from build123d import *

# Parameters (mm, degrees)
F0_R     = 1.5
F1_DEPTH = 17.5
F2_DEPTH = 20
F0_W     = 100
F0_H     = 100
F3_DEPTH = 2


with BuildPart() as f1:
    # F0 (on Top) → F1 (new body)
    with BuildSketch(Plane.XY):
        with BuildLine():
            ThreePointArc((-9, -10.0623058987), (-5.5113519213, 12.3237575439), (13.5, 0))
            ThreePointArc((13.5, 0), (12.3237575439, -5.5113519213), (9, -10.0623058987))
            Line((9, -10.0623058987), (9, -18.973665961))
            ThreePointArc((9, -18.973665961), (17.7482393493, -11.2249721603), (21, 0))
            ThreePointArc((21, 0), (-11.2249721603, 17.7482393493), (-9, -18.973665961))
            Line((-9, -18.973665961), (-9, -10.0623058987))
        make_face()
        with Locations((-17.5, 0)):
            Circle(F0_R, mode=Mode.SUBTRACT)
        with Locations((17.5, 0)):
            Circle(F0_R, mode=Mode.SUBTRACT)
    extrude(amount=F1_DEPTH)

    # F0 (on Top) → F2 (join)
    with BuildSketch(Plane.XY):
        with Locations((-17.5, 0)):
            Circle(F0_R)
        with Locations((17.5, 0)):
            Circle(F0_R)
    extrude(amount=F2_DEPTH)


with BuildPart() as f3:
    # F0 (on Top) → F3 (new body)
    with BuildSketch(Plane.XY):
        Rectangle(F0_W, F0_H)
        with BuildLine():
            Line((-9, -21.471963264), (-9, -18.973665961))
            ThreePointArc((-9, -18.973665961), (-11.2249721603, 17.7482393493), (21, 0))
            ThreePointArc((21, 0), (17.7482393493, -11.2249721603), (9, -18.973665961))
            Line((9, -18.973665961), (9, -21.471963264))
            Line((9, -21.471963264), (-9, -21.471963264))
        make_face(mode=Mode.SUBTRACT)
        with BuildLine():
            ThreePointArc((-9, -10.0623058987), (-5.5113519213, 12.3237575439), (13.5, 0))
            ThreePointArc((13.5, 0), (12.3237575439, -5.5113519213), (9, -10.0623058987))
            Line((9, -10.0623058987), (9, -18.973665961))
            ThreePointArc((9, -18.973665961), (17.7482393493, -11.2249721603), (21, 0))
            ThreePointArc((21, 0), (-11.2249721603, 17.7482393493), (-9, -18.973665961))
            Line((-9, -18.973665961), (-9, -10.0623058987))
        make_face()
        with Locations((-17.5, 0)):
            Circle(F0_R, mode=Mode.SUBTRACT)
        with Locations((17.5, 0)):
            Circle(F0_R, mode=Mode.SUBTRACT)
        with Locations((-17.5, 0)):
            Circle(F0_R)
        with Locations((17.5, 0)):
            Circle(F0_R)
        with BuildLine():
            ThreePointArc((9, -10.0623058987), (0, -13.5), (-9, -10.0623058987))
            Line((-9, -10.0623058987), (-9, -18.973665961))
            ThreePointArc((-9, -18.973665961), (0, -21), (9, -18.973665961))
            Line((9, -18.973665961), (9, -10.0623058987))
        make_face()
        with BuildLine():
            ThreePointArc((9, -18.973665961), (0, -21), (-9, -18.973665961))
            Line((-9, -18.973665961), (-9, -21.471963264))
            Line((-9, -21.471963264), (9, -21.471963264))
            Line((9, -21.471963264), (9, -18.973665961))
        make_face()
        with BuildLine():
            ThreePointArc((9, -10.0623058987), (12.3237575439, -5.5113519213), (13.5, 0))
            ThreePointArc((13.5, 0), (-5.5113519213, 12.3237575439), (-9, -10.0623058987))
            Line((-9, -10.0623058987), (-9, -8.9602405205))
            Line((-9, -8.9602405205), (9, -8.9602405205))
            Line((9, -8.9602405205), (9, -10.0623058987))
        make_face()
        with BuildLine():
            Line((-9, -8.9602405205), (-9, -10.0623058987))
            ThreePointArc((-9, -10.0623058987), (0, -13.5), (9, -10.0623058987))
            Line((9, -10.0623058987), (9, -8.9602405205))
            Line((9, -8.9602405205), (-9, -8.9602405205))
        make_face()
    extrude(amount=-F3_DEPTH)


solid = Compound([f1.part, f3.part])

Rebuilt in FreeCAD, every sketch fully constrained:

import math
import FreeCAD as App
import Part
import Sketcher


def add_polygon(sketch, points):
    """Adds a closed chain of lines whose ends are joined by coincident constraints."""
    first, n = sketch.GeometryCount, len(points)
    for a, b in zip(points, points[1:] + points[:1]):
        sketch.addGeometry(Part.LineSegment(App.Vector(*a, 0), App.Vector(*b, 0)), False)
    for i in range(n):
        sketch.addConstraint(Sketcher.Constraint("Coincident", first + i, 2, first + (i + 1) % n, 1))

doc = App.newDocument("Part")
body = doc.addObject("PartDesign::Body", "Body")

# Sketch on XY plane
sketch1 = body.newObject("Sketcher::SketchObject", "Sketch")
sketch1.AttachmentSupport = (doc.getObject("XY_Plane"), [""])
sketch1.MapMode = "FlatFace"
sketch1.addGeometry([
    Part.ArcOfCircle(Part.Circle(App.Vector(0, 0, 0), App.Vector(0, 0, 1), 13.5), math.radians(0), math.radians(228)),  # 0
    Part.ArcOfCircle(Part.Circle(App.Vector(0, 0, 0), App.Vector(0, 0, 1), 13.5), math.radians(-48), math.radians(0)),  # 1
    Part.LineSegment(App.Vector(9, -10.1, 0), App.Vector(9, -19, 0)),  # 2
    Part.ArcOfCircle(Part.Circle(App.Vector(0, 0, 0), App.Vector(0, 0, 1), 21), math.radians(-65), math.radians(0)),  # 3
    Part.ArcOfCircle(Part.Circle(App.Vector(0, 0, 0), App.Vector(0, 0, 1), 21), math.radians(0), math.radians(245)),  # 4
    Part.LineSegment(App.Vector(-9, -19, 0), App.Vector(-9, -10.1, 0)),  # 5
    Part.Circle(App.Vector(-17.5, 0, 0), App.Vector(0, 0, 1), 1.5),  # 6
    Part.Circle(App.Vector(17.5, 0, 0), App.Vector(0, 0, 1), 1.5),  # 7
], False)
sketch1.addConstraint([
    Sketcher.Constraint("Tangent", 0, 1, 1, 2),
    Sketcher.Constraint("Coincident", 1, 1, 2, 1),
    Sketcher.Constraint("Coincident", 2, 2, 3, 1),
    Sketcher.Constraint("Tangent", 3, 2, 4, 1),
    Sketcher.Constraint("Coincident", 4, 2, 5, 1),
    Sketcher.Constraint("Coincident", 5, 2, 0, 2),
    Sketcher.Constraint("Vertical", 2),
    Sketcher.Constraint("Vertical", 5),
    Sketcher.Constraint("Coincident", 0, 3, -1, 1),
    Sketcher.Constraint("Coincident", 3, 3, -1, 1),
    Sketcher.Constraint("Equal", 0, 1),
    Sketcher.Constraint("Equal", 3, 4),
    Sketcher.Constraint("Equal", 6, 7),
    Sketcher.Constraint("Symmetric", 6, 3, 7, 3, -1, 1),
    Sketcher.Constraint("PointOnObject", 6, 3, -1),
    Sketcher.Constraint("PointOnObject", 0, 1, -1),
    Sketcher.Constraint("PointOnObject", 3, 2, -1),
    Sketcher.Constraint("Horizontal", 2, 2, 4, 2),
    Sketcher.Constraint("Diameter", 6, 3.0),
    Sketcher.Constraint("Radius", 3, 21.0),
    Sketcher.Constraint("Radius", 0, 13.5),
    Sketcher.Constraint("DistanceX", -1, 1, 1, 1, 9.0),
    Sketcher.Constraint("DistanceX", 6, 3, 7, 3, 35.0),
])
pad1 = body.newObject("PartDesign::Pad", "Pad")
pad1.Profile = sketch1
pad1.Length = 17.5

# Sketch on XY plane
sketch2 = body.newObject("Sketcher::SketchObject", "Sketch001")
sketch2.AttachmentSupport = (doc.getObject("XY_Plane"), [""])
sketch2.MapMode = "FlatFace"
sketch2.addGeometry([
    Part.Circle(App.Vector(-17.5, 0, 0), App.Vector(0, 0, 1), 1.5),
    Part.Circle(App.Vector(17.5, 0, 0), App.Vector(0, 0, 1), 1.5),
], False)
sketch2.addConstraint([
    Sketcher.Constraint("Equal", 0, 1),
    Sketcher.Constraint("Symmetric", 0, 3, 1, 3, -1, 1),
    Sketcher.Constraint("PointOnObject", 0, 3, -1),
    Sketcher.Constraint("Diameter", 0, 3.0),
    Sketcher.Constraint("DistanceX", 0, 3, 1, 3, 35.0),
])
pad2 = body.newObject("PartDesign::Pad", "Pad001")
pad2.Profile = sketch2
pad2.Length = 20
body2 = doc.addObject("PartDesign::Body", "Body001")

# Sketch on XY plane
sketch3 = body2.newObject("Sketcher::SketchObject", "Sketch002")
sketch3.AttachmentSupport = (doc.getObject("XY_Plane001"), [""])
sketch3.MapMode = "FlatFace"
add_polygon(sketch3, [(-50, 50), (-50, -50), (50, -50), (50, 50)])  # lines 0-3
sketch3.addConstraint([
    Sketcher.Constraint("Vertical", 0),
    Sketcher.Constraint("Horizontal", 1),
    Sketcher.Constraint("Vertical", 2),
    Sketcher.Constraint("Horizontal", 3),
    Sketcher.Constraint("Symmetric", 0, 2, 2, 2, -1, 1),
    Sketcher.Constraint("Equal", 3, 0),
    Sketcher.Constraint("DistanceX", 1, 1, 1, 2, 100.0),
])
pad3 = body2.newObject("PartDesign::Pad", "Pad002")
pad3.Profile = sketch3
pad3.Length = 2
pad3.Reversed = True

doc.recompute()
